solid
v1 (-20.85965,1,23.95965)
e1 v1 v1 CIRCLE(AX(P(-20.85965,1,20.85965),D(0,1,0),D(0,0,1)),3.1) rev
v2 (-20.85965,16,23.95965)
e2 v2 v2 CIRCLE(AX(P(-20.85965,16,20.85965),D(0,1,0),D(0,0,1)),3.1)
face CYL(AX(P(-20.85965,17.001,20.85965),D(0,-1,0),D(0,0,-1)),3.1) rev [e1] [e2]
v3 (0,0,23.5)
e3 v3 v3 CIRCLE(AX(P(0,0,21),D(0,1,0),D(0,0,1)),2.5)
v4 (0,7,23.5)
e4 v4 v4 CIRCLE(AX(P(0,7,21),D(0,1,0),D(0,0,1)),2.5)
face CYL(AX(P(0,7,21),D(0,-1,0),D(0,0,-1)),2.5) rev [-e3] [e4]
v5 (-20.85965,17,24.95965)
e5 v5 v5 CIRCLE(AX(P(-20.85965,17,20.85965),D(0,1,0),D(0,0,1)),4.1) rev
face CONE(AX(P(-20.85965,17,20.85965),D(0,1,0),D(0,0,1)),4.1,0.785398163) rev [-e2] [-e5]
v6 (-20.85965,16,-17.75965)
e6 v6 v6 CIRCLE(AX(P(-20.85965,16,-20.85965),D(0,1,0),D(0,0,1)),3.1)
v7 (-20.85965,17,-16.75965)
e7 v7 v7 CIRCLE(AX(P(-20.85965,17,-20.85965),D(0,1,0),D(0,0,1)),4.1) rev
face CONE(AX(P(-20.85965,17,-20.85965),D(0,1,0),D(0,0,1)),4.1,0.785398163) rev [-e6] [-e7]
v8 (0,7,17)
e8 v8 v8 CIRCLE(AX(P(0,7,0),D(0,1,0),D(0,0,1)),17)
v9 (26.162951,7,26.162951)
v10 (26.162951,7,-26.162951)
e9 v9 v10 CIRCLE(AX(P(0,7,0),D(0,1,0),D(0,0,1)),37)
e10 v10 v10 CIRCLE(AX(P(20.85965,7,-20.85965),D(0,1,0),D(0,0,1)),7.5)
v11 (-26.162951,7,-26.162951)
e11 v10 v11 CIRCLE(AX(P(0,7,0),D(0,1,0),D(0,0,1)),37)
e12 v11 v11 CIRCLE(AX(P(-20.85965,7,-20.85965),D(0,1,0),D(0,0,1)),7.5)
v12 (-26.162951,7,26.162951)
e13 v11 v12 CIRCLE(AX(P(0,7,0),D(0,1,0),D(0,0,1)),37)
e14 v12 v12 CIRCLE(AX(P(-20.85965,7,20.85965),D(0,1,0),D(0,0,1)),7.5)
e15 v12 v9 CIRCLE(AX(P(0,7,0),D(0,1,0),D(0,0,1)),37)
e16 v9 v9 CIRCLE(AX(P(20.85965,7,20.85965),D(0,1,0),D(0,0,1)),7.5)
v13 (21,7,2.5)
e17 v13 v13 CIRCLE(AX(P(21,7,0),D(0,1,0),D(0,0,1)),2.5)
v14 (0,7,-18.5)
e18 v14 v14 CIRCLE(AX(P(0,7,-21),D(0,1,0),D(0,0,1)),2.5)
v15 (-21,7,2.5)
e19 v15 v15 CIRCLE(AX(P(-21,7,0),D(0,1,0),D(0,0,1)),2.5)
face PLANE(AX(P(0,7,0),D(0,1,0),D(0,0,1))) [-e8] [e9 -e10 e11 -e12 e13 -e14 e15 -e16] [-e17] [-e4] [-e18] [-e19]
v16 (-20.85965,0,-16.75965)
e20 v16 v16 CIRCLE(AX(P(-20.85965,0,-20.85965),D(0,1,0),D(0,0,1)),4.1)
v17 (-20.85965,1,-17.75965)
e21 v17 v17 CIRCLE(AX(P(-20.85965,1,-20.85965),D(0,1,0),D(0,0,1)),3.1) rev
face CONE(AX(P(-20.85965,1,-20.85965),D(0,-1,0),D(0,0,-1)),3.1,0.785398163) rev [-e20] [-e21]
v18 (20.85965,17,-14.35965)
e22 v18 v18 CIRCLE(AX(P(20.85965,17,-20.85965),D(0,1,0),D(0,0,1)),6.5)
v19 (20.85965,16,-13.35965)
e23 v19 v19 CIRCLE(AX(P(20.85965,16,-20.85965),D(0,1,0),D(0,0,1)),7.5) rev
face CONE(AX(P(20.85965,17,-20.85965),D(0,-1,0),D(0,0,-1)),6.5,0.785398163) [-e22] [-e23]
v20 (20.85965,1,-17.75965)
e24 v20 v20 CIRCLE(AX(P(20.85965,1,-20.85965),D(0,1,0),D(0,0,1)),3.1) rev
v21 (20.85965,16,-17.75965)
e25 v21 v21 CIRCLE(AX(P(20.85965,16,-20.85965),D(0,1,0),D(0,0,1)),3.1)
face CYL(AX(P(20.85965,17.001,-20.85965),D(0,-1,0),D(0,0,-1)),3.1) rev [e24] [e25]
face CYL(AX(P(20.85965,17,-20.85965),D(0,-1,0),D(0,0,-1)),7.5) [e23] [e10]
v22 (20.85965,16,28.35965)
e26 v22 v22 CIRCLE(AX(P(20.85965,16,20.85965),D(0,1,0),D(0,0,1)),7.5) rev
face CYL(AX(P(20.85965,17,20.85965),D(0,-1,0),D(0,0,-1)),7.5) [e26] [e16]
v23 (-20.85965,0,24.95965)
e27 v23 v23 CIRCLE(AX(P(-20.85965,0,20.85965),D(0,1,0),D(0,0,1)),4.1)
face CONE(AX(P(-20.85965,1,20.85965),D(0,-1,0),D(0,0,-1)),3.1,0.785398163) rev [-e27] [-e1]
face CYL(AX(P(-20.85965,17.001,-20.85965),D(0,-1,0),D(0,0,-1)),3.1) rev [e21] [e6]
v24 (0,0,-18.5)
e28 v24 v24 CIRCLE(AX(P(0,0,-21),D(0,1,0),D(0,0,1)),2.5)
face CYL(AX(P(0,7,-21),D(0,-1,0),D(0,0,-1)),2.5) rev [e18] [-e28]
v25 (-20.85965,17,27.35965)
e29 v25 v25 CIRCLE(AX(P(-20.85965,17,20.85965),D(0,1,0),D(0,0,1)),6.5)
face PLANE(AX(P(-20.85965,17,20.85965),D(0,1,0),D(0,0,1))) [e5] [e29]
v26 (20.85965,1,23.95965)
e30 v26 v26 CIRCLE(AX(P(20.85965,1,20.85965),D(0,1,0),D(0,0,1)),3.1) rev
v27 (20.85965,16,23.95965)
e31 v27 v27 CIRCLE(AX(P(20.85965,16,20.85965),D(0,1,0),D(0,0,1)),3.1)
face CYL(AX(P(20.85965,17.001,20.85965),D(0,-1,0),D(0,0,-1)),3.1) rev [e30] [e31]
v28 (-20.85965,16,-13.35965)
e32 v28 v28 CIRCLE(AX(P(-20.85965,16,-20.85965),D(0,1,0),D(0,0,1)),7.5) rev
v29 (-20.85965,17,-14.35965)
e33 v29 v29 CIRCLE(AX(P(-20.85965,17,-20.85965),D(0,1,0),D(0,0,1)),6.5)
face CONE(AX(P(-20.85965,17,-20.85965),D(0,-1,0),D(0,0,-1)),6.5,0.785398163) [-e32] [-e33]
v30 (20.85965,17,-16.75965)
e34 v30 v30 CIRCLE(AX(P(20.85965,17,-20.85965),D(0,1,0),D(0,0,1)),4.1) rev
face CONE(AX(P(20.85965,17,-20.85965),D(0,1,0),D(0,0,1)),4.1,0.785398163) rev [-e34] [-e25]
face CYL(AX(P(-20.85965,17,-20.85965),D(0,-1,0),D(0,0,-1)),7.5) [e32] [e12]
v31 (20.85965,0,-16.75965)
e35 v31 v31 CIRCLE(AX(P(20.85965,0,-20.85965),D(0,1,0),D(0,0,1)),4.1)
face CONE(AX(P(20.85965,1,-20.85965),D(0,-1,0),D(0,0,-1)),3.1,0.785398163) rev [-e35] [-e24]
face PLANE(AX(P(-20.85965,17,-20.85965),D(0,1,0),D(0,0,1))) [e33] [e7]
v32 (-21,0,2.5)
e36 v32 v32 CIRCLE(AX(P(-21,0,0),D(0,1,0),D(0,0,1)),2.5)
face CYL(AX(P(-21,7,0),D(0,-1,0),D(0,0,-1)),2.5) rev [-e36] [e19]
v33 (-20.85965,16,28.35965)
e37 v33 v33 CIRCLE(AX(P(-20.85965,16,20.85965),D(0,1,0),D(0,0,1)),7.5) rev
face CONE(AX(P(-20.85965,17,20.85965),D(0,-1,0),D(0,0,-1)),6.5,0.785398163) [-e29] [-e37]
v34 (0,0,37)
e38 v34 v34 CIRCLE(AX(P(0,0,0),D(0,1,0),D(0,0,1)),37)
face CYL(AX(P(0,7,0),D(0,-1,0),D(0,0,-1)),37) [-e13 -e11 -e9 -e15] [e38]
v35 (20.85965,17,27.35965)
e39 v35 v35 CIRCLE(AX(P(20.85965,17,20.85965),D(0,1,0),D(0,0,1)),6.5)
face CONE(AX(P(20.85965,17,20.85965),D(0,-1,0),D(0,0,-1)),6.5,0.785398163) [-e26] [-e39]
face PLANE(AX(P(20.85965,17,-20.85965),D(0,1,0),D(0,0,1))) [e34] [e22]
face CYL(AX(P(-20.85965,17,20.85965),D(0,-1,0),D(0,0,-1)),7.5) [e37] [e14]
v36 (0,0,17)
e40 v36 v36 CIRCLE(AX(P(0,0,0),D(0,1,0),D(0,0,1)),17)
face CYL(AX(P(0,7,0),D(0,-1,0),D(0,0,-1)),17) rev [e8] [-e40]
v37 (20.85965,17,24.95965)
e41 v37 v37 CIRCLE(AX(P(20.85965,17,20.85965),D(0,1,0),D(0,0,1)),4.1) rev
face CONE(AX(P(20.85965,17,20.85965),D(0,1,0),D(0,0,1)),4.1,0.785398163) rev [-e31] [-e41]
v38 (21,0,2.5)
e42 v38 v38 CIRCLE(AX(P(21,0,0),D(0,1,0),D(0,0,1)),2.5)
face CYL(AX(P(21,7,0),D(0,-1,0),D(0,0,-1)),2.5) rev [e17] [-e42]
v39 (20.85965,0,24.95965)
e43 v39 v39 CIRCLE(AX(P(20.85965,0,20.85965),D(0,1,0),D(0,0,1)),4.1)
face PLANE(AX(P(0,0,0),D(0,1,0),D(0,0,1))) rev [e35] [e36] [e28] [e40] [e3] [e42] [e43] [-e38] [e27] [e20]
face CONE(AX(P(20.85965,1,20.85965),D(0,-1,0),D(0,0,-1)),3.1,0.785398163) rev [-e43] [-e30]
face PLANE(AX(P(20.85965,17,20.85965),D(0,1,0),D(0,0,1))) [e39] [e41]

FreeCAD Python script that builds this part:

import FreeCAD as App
import Part
import Sketcher


def edges_at(feature, points):
    """Names of the edges that pass closest to the given points."""
    edges = feature.Shape.Edges
    near = lambda p: min(range(len(edges)), key=lambda i: edges[i].distToShape(Part.Vertex(*p))[0])
    return sorted({f"Edge{near(p) + 1}" for p in points})

doc = App.newDocument("Part")
body = doc.addObject("PartDesign::Body", "Body")

sketch1 = body.newObject("Sketcher::SketchObject", "Sketch")
sketch1.AttachmentSupport = (doc.getObject("XZ_Plane"), [""])
sketch1.MapMode = "FlatFace"
sketch1.addGeometry([
    Part.Circle(App.Vector(0, 0, 0), App.Vector(0, 0, 1), 37),
    Part.Circle(App.Vector(0, -21, 0), App.Vector(0, 0, 1), 2.5),
    Part.Circle(App.Vector(-21, 0, 0), App.Vector(0, 0, 1), 2.5),
    Part.Circle(App.Vector(21, 0, 0), App.Vector(0, 0, 1), 2.5),
    Part.Circle(App.Vector(0, 0, 0), App.Vector(0, 0, 1), 17),
    Part.Circle(App.Vector(0, 21, 0), App.Vector(0, 0, 1), 2.5),
], False)
sketch1.addConstraint([
    Sketcher.Constraint("Coincident", 0, 3, -1, 1),
    Sketcher.Constraint("Coincident", 4, 3, -1, 1),
    Sketcher.Constraint("Equal", 1, 2),
    Sketcher.Constraint("Equal", 2, 3),
    Sketcher.Constraint("Equal", 3, 5),
    Sketcher.Constraint("Symmetric", 2, 3, 3, 3, -1, 1),
    Sketcher.Constraint("Symmetric", 1, 3, 5, 3, -1, 1),
    Sketcher.Constraint("PointOnObject", 1, 3, -2),
    Sketcher.Constraint("PointOnObject", 2, 3, -1),
    Sketcher.Constraint("Diameter", 0, 74.0),
    Sketcher.Constraint("Diameter", 1, 5.0),
    Sketcher.Constraint("Diameter", 4, 34.0),
    Sketcher.Constraint("DistanceY", 1, 3, -1, 1, 21.0),
    Sketcher.Constraint("DistanceX", 2, 3, -1, 1, 21.0),
])
pad1 = body.newObject("PartDesign::Pad", "Pad")
pad1.Profile = sketch1
pad1.Length = 7
pad1.Reversed = True

sketch2 = body.newObject("Sketcher::SketchObject", "Sketch001")
sketch2.AttachmentSupport = (doc.getObject("XZ_Plane"), [""])
sketch2.MapMode = "FlatFace"
sketch2.AttachmentOffset = App.Placement(App.Vector(0, 0, -7), App.Rotation())
sketch2.addGeometry([
    Part.Circle(App.Vector(20.85965, 20.85965, 0), App.Vector(0, 0, 1), 7.5),
    Part.Circle(App.Vector(-20.85965, 20.85965, 0), App.Vector(0, 0, 1), 7.5),
    Part.Circle(App.Vector(-20.85965, -20.85965, 0), App.Vector(0, 0, 1), 7.5),
    Part.Circle(App.Vector(20.85965, -20.85965, 0), App.Vector(0, 0, 1), 7.5),
], False)
sketch2.addConstraint([
    Sketcher.Constraint("Equal", 0, 1),
    Sketcher.Constraint("Equal", 1, 2),
    Sketcher.Constraint("Equal", 2, 3),
    Sketcher.Constraint("Symmetric", 0, 3, 2, 3, -1, 1),
    Sketcher.Constraint("Symmetric", 1, 3, 3, 3, -1, 1),
    Sketcher.Constraint("Symmetric", 0, 3, 1, 3, -2),
    Sketcher.Constraint("Diameter", 0, 15.0),
    Sketcher.Constraint("DistanceX", 1, 3, 0, 3, 41.7193),
    Sketcher.Constraint("DistanceY", 2, 3, 1, 3, 41.7193),
])
pad2 = body.newObject("PartDesign::Pad", "Pad001")
pad2.Profile = sketch2
pad2.Length = 10
pad2.Reversed = True

sketch3 = body.newObject("Sketcher::SketchObject", "Sketch002")
sketch3.AttachmentSupport = (doc.getObject("XZ_Plane"), [""])
sketch3.MapMode = "FlatFace"
sketch3.addGeometry(Part.Circle(App.Vector(20.85965, 20.85965, 0), App.Vector(0, 0, 1), 3.1), False)
sketch3.addConstraint([
    Sketcher.Constraint("Diameter", 0, 6.2),
    Sketcher.Constraint("DistanceX", -1, 1, 0, 3, 20.85965),
    Sketcher.Constraint("DistanceY", -1, 1, 0, 3, 20.85965),
])
pocket1 = body.newObject("PartDesign::Pocket", "Pocket")
pocket1.Profile = sketch3
pocket1.Type = "UpToFirst"

sketch4 = body.newObject("Sketcher::SketchObject", "Sketch003")
sketch4.AttachmentSupport = (doc.getObject("XZ_Plane"), [""])
sketch4.MapMode = "FlatFace"
sketch4.addGeometry(Part.Circle(App.Vector(20.85965, -20.85965, 0), App.Vector(0, 0, 1), 3.1), False)
sketch4.addConstraint([
    Sketcher.Constraint("Diameter", 0, 6.2),
    Sketcher.Constraint("DistanceX", -1, 1, 0, 3, 20.85965),
    Sketcher.Constraint("DistanceY", 0, 3, -1, 1, 20.85965),
])
pocket2 = body.newObject("PartDesign::Pocket", "Pocket001")
pocket2.Profile = sketch4
pocket2.Type = "UpToFirst"

sketch5 = body.newObject("Sketcher::SketchObject", "Sketch004")
sketch5.AttachmentSupport = (doc.getObject("XZ_Plane"), [""])
sketch5.MapMode = "FlatFace"
sketch5.addGeometry(Part.Circle(App.Vector(-20.85965, -20.85965, 0), App.Vector(0, 0, 1), 3.1), False)
sketch5.addConstraint([
    Sketcher.Constraint("Diameter", 0, 6.2),
    Sketcher.Constraint("DistanceX", 0, 3, -1, 1, 20.85965),
    Sketcher.Constraint("DistanceY", 0, 3, -1, 1, 20.85965),
])
pocket3 = body.newObject("PartDesign::Pocket", "Pocket002")
pocket3.Profile = sketch5
pocket3.Type = "UpToFirst"

sketch6 = body.newObject("Sketcher::SketchObject", "Sketch005")
sketch6.AttachmentSupport = (doc.getObject("XZ_Plane"), [""])
sketch6.MapMode = "FlatFace"
sketch6.addGeometry(Part.Circle(App.Vector(-20.85965, 20.85965, 0), App.Vector(0, 0, 1), 3.1), False)
sketch6.addConstraint([
    Sketcher.Constraint("Diameter", 0, 6.2),
    Sketcher.Constraint("DistanceX", 0, 3, -1, 1, 20.85965),
    Sketcher.Constraint("DistanceY", -1, 1, 0, 3, 20.85965),
])
pocket4 = body.newObject("PartDesign::Pocket", "Pocket003")
pocket4.Profile = sketch6
pocket4.Type = "UpToFirst"
doc.recompute()

chamfer = body.newObject("PartDesign::Chamfer", "Chamfer")
chamfer.Base = (pocket4, edges_at(pocket4, [
    (15.556, 17, 15.556),
    (-15.556, 17, 15.556),
    (-15.556, 17, -15.556),
    (15.556, 17, -15.556),
    (-20.86, 17, 23.96),
    (-20.86, 0, 23.96),
    (-20.86, 17, -17.76),
    (-20.86, 0, -17.76),
    (20.86, 17, -17.76),
    (20.86, 0, -17.76),
    (20.86, 17, 23.96),
    (20.86, 0, 23.96),
]))
chamfer.Size = 1

doc.recompute()
